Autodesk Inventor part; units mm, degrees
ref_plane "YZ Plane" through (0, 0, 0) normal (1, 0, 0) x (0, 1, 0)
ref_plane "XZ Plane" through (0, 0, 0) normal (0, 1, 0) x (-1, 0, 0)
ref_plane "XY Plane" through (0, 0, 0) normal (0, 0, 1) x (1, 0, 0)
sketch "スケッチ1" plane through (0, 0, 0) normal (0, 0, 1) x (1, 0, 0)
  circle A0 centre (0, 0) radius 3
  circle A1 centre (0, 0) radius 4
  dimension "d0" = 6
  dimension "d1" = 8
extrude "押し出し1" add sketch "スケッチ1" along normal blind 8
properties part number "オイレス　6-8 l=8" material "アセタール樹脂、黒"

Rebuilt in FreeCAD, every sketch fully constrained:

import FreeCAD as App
import Part
import Sketcher
from FreeCAD import Vector

doc = App.newDocument("Part")
body = doc.addObject("PartDesign::Body", "Body")

# Sketch on XY plane
sketch1 = body.newObject("Sketcher::SketchObject", "Sketch")
sketch1.AttachmentSupport = (doc.getObject("XY_Plane"), [""])
sketch1.MapMode = "FlatFace"
sketch1.addGeometry([
    Part.Circle(Vector(0, 0, 0), Vector(0, 0, 1), 4),
    Part.Circle(Vector(0, 0, 0), Vector(0, 0, 1), 3),
], False)
sketch1.addConstraint([
    Sketcher.Constraint("Coincident", 0, 3, -1, 1),
    Sketcher.Constraint("Coincident", 1, 3, -1, 1),
    Sketcher.Constraint("Diameter", 0, 8.0),
    Sketcher.Constraint("Diameter", 1, 6.0),
])
pad1 = body.newObject("PartDesign::Pad", "Pad")
pad1.Profile = sketch1
pad1.Length = 8

doc.recompute()
